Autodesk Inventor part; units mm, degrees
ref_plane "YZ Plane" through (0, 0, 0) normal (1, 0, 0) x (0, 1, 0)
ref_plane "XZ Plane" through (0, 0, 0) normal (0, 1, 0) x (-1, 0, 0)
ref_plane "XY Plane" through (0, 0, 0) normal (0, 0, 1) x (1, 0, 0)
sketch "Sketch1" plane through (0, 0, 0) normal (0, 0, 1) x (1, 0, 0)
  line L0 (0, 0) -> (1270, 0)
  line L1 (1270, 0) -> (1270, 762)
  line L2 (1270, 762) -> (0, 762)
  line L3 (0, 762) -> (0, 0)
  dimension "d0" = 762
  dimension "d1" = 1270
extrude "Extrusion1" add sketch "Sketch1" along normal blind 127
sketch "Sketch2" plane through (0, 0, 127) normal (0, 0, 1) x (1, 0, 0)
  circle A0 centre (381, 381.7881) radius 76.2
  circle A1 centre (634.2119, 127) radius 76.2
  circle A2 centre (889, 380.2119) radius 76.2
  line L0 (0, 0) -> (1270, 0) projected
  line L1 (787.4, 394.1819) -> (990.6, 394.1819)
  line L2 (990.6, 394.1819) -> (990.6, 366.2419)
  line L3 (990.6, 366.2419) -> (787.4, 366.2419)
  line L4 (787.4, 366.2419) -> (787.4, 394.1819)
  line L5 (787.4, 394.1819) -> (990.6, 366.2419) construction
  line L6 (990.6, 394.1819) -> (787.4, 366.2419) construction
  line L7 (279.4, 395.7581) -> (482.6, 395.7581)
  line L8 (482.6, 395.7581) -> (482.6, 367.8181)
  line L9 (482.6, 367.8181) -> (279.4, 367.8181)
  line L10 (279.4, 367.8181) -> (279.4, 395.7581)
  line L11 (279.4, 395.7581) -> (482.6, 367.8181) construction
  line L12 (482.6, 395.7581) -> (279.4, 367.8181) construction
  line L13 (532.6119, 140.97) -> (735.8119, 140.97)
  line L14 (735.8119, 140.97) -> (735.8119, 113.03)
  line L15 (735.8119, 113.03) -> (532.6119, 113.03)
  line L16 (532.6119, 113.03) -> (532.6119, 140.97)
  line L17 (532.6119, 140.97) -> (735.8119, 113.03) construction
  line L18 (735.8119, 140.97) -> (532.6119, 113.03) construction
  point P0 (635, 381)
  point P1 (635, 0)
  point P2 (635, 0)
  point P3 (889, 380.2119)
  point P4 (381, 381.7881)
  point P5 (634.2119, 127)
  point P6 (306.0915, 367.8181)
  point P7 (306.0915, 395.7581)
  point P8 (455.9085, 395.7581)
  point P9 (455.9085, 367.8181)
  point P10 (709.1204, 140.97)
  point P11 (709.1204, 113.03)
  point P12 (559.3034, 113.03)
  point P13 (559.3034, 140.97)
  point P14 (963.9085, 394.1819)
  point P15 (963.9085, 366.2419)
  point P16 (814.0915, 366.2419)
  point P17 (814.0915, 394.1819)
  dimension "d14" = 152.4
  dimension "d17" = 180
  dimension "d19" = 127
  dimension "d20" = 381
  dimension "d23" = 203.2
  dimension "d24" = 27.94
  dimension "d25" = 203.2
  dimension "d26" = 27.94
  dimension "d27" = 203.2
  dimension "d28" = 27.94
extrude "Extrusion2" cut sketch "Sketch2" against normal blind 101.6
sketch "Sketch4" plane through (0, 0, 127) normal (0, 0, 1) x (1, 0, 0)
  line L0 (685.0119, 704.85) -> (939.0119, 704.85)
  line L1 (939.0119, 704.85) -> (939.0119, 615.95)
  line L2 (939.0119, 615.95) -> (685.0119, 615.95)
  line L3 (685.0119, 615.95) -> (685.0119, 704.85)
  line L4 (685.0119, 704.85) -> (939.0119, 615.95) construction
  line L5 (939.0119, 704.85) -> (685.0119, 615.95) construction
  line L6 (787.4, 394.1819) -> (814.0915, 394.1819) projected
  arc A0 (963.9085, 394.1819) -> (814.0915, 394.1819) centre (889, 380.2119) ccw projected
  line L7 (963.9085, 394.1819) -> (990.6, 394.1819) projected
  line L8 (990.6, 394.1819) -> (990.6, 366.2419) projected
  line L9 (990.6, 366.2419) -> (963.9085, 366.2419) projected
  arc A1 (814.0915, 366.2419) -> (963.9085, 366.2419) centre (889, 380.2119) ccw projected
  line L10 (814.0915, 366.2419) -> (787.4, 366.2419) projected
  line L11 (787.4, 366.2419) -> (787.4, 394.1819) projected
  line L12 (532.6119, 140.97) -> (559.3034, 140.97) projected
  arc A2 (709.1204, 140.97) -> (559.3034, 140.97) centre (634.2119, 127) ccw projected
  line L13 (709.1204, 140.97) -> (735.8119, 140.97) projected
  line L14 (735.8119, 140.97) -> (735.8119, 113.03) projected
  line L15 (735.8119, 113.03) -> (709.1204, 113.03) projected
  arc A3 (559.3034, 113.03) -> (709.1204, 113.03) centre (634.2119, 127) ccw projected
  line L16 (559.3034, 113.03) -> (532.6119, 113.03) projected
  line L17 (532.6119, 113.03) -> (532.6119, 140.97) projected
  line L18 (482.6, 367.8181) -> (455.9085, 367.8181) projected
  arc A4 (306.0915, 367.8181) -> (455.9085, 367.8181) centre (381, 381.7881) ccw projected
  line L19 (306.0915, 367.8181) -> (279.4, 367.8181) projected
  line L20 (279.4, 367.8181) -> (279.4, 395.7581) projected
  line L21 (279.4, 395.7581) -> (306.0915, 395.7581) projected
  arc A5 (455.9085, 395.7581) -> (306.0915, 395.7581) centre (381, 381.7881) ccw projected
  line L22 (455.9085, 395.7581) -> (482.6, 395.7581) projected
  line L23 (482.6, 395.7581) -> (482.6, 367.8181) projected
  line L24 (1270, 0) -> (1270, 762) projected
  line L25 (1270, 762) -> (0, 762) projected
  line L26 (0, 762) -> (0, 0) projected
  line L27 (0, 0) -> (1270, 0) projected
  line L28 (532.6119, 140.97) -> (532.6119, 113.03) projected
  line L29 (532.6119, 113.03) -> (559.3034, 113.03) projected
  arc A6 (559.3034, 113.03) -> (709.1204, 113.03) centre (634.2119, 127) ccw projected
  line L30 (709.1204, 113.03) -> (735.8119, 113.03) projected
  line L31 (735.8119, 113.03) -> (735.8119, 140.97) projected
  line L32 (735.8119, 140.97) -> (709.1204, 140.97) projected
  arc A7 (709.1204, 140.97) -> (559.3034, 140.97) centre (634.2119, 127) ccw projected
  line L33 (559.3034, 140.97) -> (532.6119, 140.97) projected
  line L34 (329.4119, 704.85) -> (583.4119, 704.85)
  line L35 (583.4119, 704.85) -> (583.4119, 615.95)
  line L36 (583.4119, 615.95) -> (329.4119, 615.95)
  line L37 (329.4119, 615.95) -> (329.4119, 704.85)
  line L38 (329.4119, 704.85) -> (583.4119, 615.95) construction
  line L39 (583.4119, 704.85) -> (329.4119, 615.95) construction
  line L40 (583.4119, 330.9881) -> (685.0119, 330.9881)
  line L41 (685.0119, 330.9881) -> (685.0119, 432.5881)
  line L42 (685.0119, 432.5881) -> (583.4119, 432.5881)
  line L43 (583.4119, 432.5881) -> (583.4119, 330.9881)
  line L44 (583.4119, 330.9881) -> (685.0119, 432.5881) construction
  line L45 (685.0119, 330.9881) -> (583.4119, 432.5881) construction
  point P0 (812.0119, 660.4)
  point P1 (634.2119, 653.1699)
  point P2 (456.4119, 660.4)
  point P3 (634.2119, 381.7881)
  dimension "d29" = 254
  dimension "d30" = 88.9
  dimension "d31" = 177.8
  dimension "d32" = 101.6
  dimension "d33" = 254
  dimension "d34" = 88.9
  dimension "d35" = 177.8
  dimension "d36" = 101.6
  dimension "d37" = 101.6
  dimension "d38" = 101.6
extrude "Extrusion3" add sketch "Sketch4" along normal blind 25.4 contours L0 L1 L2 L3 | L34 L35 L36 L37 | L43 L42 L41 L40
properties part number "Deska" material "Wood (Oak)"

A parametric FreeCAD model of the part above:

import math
import FreeCAD as App
import Part
import Sketcher

V = App.Vector
Q = App.Units.Quantity

doc = App.newDocument("Part")
params = doc.addObject("Spreadsheet::Sheet", "Params")
for row, (alias, value) in enumerate([
    ("sketch1_width", "50 in"),
    ("sketch1_height", "30 in"),
    ("pad1_length", "5 in"),
    ("sketch2_radius", "3 in"),
    ("sketch2_height", "1.1 in"),
    ("pocket1_length", "4 in"),
    ("sketch3_width", "10 in"),
    ("sketch3_width2", "4 in"),
    ("sketch3_height", "3.5 in"),
    ("pad2_length", "1 in"),
], start=1):
    params.set(f"A{row}", alias)
    params.set(f"B{row}", "=" + value)
    params.setAlias(f"B{row}", alias)

body = doc.addObject("PartDesign::Body", "Body")

sketch1 = doc.addObject("Sketcher::SketchObject", "Sketch")
body.addObject(sketch1)
sketch1.AttachmentSupport = (doc.XY_Plane, [""])
sketch1.MapMode = "FlatFace"
sketch1.addGeometry([
    Part.LineSegment(V(0, 762, 0), V(0, 0, 0)),
    Part.LineSegment(V(0, 0, 0), V(1270, 0, 0)),
    Part.LineSegment(V(1270, 0, 0), V(1270, 762, 0)),
    Part.LineSegment(V(1270, 762, 0), V(0, 762, 0)),
], False)
sketch1.addConstraint([
    Sketcher.Constraint("Coincident", 0, 2, 1, 1),
    Sketcher.Constraint("Coincident", 1, 2, 2, 1),
    Sketcher.Constraint("Coincident", 2, 2, 3, 1),
    Sketcher.Constraint("Coincident", 3, 2, 0, 1),
    Sketcher.Constraint("Vertical", 0),
    Sketcher.Constraint("Horizontal", 1),
    Sketcher.Constraint("Vertical", 2),
    Sketcher.Constraint("Horizontal", 3),
    Sketcher.Constraint("Coincident", 0, 2, -1, 1),
    Sketcher.Constraint("DistanceX", 1, 1, 1, 2, Q("50 in")),
    Sketcher.Constraint("DistanceY", 0, 2, 0, 1, Q("30 in")),
])
sketch1.setExpression("Constraints[9]", "Params.sketch1_width")
sketch1.setExpression("Constraints[10]", "Params.sketch1_height")
pad1 = doc.addObject("PartDesign::Pad", "Pad")
body.addObject(pad1)
pad1.Profile = sketch1
pad1.setExpression("Length", "Params.pad1_length")

sketch2 = doc.addObject("Sketcher::SketchObject", "Sketch001")
body.addObject(sketch2)
sketch2.AttachmentSupport = (doc.XY_Plane, [""])
sketch2.MapMode = "FlatFace"
sketch2.AttachmentOffset = App.Placement(V(0, 0, 5 * 25.4), App.Rotation())
sketch2.addGeometry([
    Part.LineSegment(V(456, 368, 0), V(483, 368, 0)),
    Part.LineSegment(V(483, 368, 0), V(483, 396, 0)),
    Part.LineSegment(V(483, 396, 0), V(456, 396, 0)),
    Part.ArcOfCircle(Part.Circle(V(381, 382, 0), V(0, 0, 1), 76), math.radians(11), math.radians(169)),
    Part.LineSegment(V(306, 396, 0), V(279, 396, 0)),
    Part.LineSegment(V(279, 396, 0), V(279, 368, 0)),
    Part.LineSegment(V(279, 368, 0), V(306, 368, 0)),
    Part.ArcOfCircle(Part.Circle(V(381, 382, 0), V(0, 0, 1), 76), math.radians(-169), math.radians(-11)),
    Part.LineSegment(V(709, 113, 0), V(736, 113, 0)),
    Part.LineSegment(V(736, 113, 0), V(736, 141, 0)),
    Part.LineSegment(V(736, 141, 0), V(709, 141, 0)),
    Part.ArcOfCircle(Part.Circle(V(634, 127, 0), V(0, 0, 1), 76), math.radians(11), math.radians(169)),
    Part.LineSegment(V(559, 141, 0), V(533, 141, 0)),
    Part.LineSegment(V(533, 141, 0), V(533, 113, 0)),
    Part.LineSegment(V(533, 113, 0), V(559, 113, 0)),
    Part.ArcOfCircle(Part.Circle(V(634, 127, 0), V(0, 0, 1), 76), math.radians(-169), math.radians(-11)),
    Part.LineSegment(V(964, 366, 0), V(991, 366, 0)),
    Part.LineSegment(V(991, 366, 0), V(991, 394, 0)),
    Part.LineSegment(V(991, 394, 0), V(964, 394, 0)),
    Part.ArcOfCircle(Part.Circle(V(889, 380, 0), V(0, 0, 1), 76), math.radians(11), math.radians(169)),
    Part.LineSegment(V(814, 394, 0), V(787, 394, 0)),
    Part.LineSegment(V(787, 394, 0), V(787, 366, 0)),
    Part.LineSegment(V(787, 366, 0), V(814, 366, 0)),
    Part.ArcOfCircle(Part.Circle(V(889, 380, 0), V(0, 0, 1), 76), math.radians(-169), math.radians(-11)),
], False)
sketch2.addConstraint([
    Sketcher.Constraint("Coincident", 0, 2, 1, 1),
    Sketcher.Constraint("Coincident", 1, 2, 2, 1),
    Sketcher.Constraint("Coincident", 2, 2, 3, 1),
    Sketcher.Constraint("Coincident", 3, 2, 4, 1),
    Sketcher.Constraint("Coincident", 4, 2, 5, 1),
    Sketcher.Constraint("Coincident", 5, 2, 6, 1),
    Sketcher.Constraint("Coincident", 6, 2, 7, 1),
    Sketcher.Constraint("Coincident", 7, 2, 0, 1),
    Sketcher.Constraint("Coincident", 8, 2, 9, 1),
    Sketcher.Constraint("Coincident", 9, 2, 10, 1),
    Sketcher.Constraint("Coincident", 10, 2, 11, 1),
    Sketcher.Constraint("Coincident", 11, 2, 12, 1),
    Sketcher.Constraint("Coincident", 12, 2, 13, 1),
    Sketcher.Constraint("Coincident", 13, 2, 14, 1),
    Sketcher.Constraint("Coincident", 14, 2, 15, 1),
    Sketcher.Constraint("Coincident", 15, 2, 8, 1),
    Sketcher.Constraint("Coincident", 16, 2, 17, 1),
    Sketcher.Constraint("Coincident", 17, 2, 18, 1),
    Sketcher.Constraint("Coincident", 18, 2, 19, 1),
    Sketcher.Constraint("Coincident", 19, 2, 20, 1),
    Sketcher.Constraint("Coincident", 20, 2, 21, 1),
    Sketcher.Constraint("Coincident", 21, 2, 22, 1),
    Sketcher.Constraint("Coincident", 22, 2, 23, 1),
    Sketcher.Constraint("Coincident", 23, 2, 16, 1),
    Sketcher.Constraint("Horizontal", 0),
    Sketcher.Constraint("Vertical", 1),
    Sketcher.Constraint("Horizontal", 2),
    Sketcher.Constraint("Horizontal", 4),
    Sketcher.Constraint("Vertical", 5),
    Sketcher.Constraint("Horizontal", 6),
    Sketcher.Constraint("Horizontal", 8),
    Sketcher.Constraint("Vertical", 9),
    Sketcher.Constraint("Horizontal", 10),
    Sketcher.Constraint("Horizontal", 12),
    Sketcher.Constraint("Vertical", 13),
    Sketcher.Constraint("Horizontal", 14),
    Sketcher.Constraint("Horizontal", 16),
    Sketcher.Constraint("Vertical", 17),
    Sketcher.Constraint("Horizontal", 18),
    Sketcher.Constraint("Horizontal", 20),
    Sketcher.Constraint("Vertical", 21),
    Sketcher.Constraint("Horizontal", 22),
    Sketcher.Constraint("Coincident", 7, 3, 3, 3),
    Sketcher.Constraint("Coincident", 15, 3, 11, 3),
    Sketcher.Constraint("Coincident", 23, 3, 19, 3),
    Sketcher.Constraint("Equal", 3, 7),
    Sketcher.Constraint("Equal", 7, 11),
    Sketcher.Constraint("Equal", 11, 15),
    Sketcher.Constraint("Equal", 15, 19),
    Sketcher.Constraint("Equal", 19, 23),
    Sketcher.Constraint("Horizontal", 2, 2, 3, 2),
    Sketcher.Constraint("Horizontal", 0, 2, 5, 2),
    Sketcher.Constraint("Horizontal", 10, 2, 11, 2),
    Sketcher.Constraint("Horizontal", 8, 2, 13, 2),
    Sketcher.Constraint("Horizontal", 18, 2, 19, 2),
    Sketcher.Constraint("Horizontal", 16, 2, 21, 2),
    Sketcher.Constraint("Vertical", 3, 2, 6, 2),
    Sketcher.Constraint("Vertical", 11, 2, 14, 2),
    Sketcher.Constraint("Vertical", 19, 2, 22, 2),
    Sketcher.Constraint("Equal", 2, 4),
    Sketcher.Constraint("Equal", 6, 8),
    Sketcher.Constraint("Equal", 10, 12),
    Sketcher.Constraint("Equal", 14, 16),
    Sketcher.Constraint("Equal", 18, 20),
    Sketcher.Constraint("Equal", 5, 9),
    Sketcher.Constraint("Equal", 13, 17),
    Sketcher.Constraint("Radius", 3, Q("3 in")),
    Sketcher.Constraint("DistanceY", 1, 1, 1, 2, Q("1.1 in")),
    Sketcher.Constraint("DistanceX", -1, 1, 3, 3, Q("15 in")),
    Sketcher.Constraint("DistanceY", -1, 1, 11, 3, Q("5 in")),
    Sketcher.Constraint("DistanceX", 4, 2, 1, 2, Q("8 in")),
    Sketcher.Constraint("DistanceX", -1, 1, 19, 3, Q("35 in")),
    Sketcher.Constraint("DistanceY", -1, 1, 3, 3, 381.788),
    Sketcher.Constraint("DistanceX", -1, 1, 11, 3, 634.212),
    Sketcher.Constraint("DistanceY", -1, 1, 19, 3, 380.212),
])
sketch2.setExpression("Constraints[66]", "Params.sketch2_radius")
sketch2.setExpression("Constraints[67]", "Params.sketch2_height")
pocket1 = doc.addObject("PartDesign::Pocket", "Pocket")
body.addObject(pocket1)
pocket1.Profile = sketch2
pocket1.setExpression("Length", "Params.pocket1_length")

sketch3 = doc.addObject("Sketcher::SketchObject", "Sketch002")
body.addObject(sketch3)
sketch3.AttachmentSupport = (doc.XY_Plane, [""])
sketch3.MapMode = "FlatFace"
sketch3.AttachmentOffset = App.Placement(V(0, 0, 5 * 25.4), App.Rotation())
sketch3.addGeometry([
    Part.LineSegment(V(939, 705, 0), V(685, 705, 0)),
    Part.LineSegment(V(685, 705, 0), V(685, 616, 0)),
    Part.LineSegment(V(685, 616, 0), V(939, 616, 0)),
    Part.LineSegment(V(939, 616, 0), V(939, 705, 0)),
    Part.LineSegment(V(583, 705, 0), V(329, 705, 0)),
    Part.LineSegment(V(329, 705, 0), V(329, 616, 0)),
    Part.LineSegment(V(329, 616, 0), V(583, 616, 0)),
    Part.LineSegment(V(583, 616, 0), V(583, 705, 0)),
    Part.LineSegment(V(583, 433, 0), V(583, 331, 0)),
    Part.LineSegment(V(583, 331, 0), V(685, 331, 0)),
    Part.LineSegment(V(685, 331, 0), V(685, 433, 0)),
    Part.LineSegment(V(685, 433, 0), V(583, 433, 0)),
], False)
sketch3.addConstraint([
    Sketcher.Constraint("Coincident", 0, 2, 1, 1),
    Sketcher.Constraint("Coincident", 1, 2, 2, 1),
    Sketcher.Constraint("Coincident", 2, 2, 3, 1),
    Sketcher.Constraint("Coincident", 3, 2, 0, 1),
    Sketcher.Constraint("Coincident", 4, 2, 5, 1),
    Sketcher.Constraint("Coincident", 5, 2, 6, 1),
    Sketcher.Constraint("Coincident", 6, 2, 7, 1),
    Sketcher.Constraint("Coincident", 7, 2, 4, 1),
    Sketcher.Constraint("Coincident", 8, 2, 9, 1),
    Sketcher.Constraint("Coincident", 9, 2, 10, 1),
    Sketcher.Constraint("Coincident", 10, 2, 11, 1),
    Sketcher.Constraint("Coincident", 11, 2, 8, 1),
    Sketcher.Constraint("Horizontal", 0),
    Sketcher.Constraint("Vertical", 1),
    Sketcher.Constraint("Horizontal", 2),
    Sketcher.Constraint("Vertical", 3),
    Sketcher.Constraint("Horizontal", 4),
    Sketcher.Constraint("Vertical", 5),
    Sketcher.Constraint("Horizontal", 6),
    Sketcher.Constraint("Vertical", 7),
    Sketcher.Constraint("Vertical", 8),
    Sketcher.Constraint("Horizontal", 9),
    Sketcher.Constraint("Vertical", 10),
    Sketcher.Constraint("Horizontal", 11),
    Sketcher.Constraint("Horizontal", 3, 2, 4, 2),
    Sketcher.Constraint("Horizontal", 2, 2, 5, 2),
    Sketcher.Constraint("Vertical", 7, 2, 8, 2),
    Sketcher.Constraint("Vertical", 1, 2, 9, 2),
    Sketcher.Constraint("Equal", 2, 4),
    Sketcher.Constraint("Equal", 11, 8),
    Sketcher.Constraint("DistanceX", 0, 2, 0, 1, Q("10 in")),
    Sketcher.Constraint("DistanceX", 9, 1, 9, 2, Q("4 in")),
    Sketcher.Constraint("DistanceY", 1, 2, 1, 1, Q("3.5 in")),
    Sketcher.Constraint("DistanceY", -1, 1, 0, 2, Q("27.75 in")),
    Sketcher.Constraint("DistanceX", -1, 1, 0, 2, 685.012),
    Sketcher.Constraint("DistanceY", -1, 1, 8, 2, 330.988),
])
sketch3.setExpression("Constraints[30]", "Params.sketch3_width")
sketch3.setExpression("Constraints[31]", "Params.sketch3_width2")
sketch3.setExpression("Constraints[32]", "Params.sketch3_height")
pad2 = doc.addObject("PartDesign::Pad", "Pad001")
body.addObject(pad2)
pad2.Profile = sketch3
pad2.setExpression("Length", "Params.pad2_length")

doc.recompute()
